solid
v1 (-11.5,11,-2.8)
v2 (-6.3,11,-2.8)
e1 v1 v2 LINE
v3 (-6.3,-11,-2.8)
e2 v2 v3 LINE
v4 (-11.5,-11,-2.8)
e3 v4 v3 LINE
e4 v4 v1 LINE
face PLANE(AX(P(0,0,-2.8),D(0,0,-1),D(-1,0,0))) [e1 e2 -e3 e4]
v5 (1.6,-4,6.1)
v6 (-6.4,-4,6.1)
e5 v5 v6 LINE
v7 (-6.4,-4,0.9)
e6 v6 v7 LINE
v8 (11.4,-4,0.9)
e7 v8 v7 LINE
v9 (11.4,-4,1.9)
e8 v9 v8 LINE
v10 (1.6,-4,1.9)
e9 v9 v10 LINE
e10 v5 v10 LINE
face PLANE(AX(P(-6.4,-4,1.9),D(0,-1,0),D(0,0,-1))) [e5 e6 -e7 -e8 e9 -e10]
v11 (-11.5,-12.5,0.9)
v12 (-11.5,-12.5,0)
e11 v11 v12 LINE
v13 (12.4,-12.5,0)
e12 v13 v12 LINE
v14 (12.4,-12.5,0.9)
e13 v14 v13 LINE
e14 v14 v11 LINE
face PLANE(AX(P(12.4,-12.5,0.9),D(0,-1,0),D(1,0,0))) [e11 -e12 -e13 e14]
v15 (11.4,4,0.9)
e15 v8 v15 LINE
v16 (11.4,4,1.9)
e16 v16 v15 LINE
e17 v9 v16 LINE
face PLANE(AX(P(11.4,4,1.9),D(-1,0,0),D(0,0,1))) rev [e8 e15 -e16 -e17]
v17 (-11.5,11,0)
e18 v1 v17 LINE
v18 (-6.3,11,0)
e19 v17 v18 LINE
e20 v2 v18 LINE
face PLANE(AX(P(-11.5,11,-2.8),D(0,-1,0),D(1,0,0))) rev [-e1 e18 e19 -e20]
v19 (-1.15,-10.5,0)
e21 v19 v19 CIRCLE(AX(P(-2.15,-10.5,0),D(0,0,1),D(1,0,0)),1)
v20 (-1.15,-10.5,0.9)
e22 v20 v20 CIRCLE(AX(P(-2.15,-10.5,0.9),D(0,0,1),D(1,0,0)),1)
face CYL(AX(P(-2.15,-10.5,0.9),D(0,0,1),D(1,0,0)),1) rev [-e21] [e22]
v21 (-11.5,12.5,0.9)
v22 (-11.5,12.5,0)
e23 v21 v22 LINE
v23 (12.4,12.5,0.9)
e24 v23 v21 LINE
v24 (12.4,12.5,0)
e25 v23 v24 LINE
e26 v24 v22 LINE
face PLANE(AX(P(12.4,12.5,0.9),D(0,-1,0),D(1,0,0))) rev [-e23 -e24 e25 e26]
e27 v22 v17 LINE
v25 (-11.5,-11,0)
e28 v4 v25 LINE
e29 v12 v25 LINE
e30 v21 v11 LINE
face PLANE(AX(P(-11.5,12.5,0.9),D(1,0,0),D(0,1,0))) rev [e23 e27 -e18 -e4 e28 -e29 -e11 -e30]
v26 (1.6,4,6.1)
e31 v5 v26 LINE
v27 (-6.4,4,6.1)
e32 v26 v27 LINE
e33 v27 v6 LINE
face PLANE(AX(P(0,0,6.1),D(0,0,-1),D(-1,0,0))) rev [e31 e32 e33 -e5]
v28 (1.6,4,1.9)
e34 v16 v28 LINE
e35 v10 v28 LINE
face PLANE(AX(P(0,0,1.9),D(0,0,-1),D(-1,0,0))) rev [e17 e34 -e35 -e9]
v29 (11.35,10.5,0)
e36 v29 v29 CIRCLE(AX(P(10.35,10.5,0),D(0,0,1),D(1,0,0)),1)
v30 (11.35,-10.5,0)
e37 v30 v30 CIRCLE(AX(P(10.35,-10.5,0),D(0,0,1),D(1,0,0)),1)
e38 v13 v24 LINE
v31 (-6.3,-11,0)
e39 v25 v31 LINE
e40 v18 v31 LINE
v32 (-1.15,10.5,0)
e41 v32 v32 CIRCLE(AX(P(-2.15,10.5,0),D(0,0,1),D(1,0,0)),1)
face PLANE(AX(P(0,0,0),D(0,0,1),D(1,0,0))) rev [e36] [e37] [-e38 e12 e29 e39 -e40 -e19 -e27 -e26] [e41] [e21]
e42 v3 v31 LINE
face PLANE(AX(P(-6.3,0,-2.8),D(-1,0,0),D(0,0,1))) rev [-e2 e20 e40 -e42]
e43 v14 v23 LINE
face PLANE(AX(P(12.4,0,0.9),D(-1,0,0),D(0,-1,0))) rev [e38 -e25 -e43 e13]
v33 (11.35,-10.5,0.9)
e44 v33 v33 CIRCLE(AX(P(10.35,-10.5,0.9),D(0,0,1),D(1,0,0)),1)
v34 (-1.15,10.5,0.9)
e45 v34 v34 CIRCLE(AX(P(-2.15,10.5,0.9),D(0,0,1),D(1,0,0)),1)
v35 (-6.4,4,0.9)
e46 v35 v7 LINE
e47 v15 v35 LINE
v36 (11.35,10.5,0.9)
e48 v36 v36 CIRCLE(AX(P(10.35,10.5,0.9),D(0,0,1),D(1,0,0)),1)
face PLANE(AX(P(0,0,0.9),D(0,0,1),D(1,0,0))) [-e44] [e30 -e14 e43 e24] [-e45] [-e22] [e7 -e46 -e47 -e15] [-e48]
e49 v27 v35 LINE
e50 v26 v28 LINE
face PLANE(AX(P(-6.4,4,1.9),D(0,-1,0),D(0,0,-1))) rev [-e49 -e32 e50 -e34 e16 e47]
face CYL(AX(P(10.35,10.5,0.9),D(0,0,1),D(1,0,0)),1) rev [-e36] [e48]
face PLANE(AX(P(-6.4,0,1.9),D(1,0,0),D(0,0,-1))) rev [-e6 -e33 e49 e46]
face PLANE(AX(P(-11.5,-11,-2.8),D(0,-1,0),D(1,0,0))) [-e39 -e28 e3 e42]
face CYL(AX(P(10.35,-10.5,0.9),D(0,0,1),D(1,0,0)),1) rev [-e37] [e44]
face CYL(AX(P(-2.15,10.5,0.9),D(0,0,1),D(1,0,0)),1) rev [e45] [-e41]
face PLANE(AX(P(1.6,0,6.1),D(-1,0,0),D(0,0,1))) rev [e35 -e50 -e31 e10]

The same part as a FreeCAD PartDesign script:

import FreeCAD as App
import Part
import Sketcher


def add_polygon(sketch, points):
    """Adds a closed chain of lines whose ends are joined by coincident constraints."""
    first, n = sketch.GeometryCount, len(points)
    for a, b in zip(points, points[1:] + points[:1]):
        sketch.addGeometry(Part.LineSegment(App.Vector(*a, 0), App.Vector(*b, 0)), False)
    for i in range(n):
        sketch.addConstraint(Sketcher.Constraint("Coincident", first + i, 2, first + (i + 1) % n, 1))

doc = App.newDocument("Part")
params = doc.addObject("Spreadsheet::Sheet", "Params")
for row, (alias, value) in enumerate([
    ("sketch1_width", "23.9 mm"),
    ("sketch1_height", "12.5 mm"),
    ("pad1_length", "0.9 mm"),
    ("sketch2_height", "4 mm"),
    ("sketch2_width", "17.8 mm"),
    ("pad2_length", "1 mm"),
    ("sketch3_width", "8 mm"),
    ("sketch3_height", "4 mm"),
    ("pad3_length", "4.2 mm"),
    ("sketch4_height", "11 mm"),
    ("sketch4_width", "5.2 mm"),
    ("pad4_length", "2.8 mm"),
    ("sketch5_diameter", "2 mm"),
    ("hole_diameter", "2 mm"),
], start=1):
    params.set(f"A{row}", alias)
    params.set(f"B{row}", "=" + value)
    params.setAlias(f"B{row}", alias)

body = doc.addObject("PartDesign::Body", "Body")

# Sketch on XY plane
sketch1 = body.newObject("Sketcher::SketchObject", "Sketch")
sketch1.AttachmentSupport = (doc.getObject("XY_Plane"), [""])
sketch1.MapMode = "FlatFace"
add_polygon(sketch1, [(-12, 12), (-12, 0), (12, 0), (12, 12)])  # lines 0-3
sketch1.addConstraint(Sketcher.Constraint("Vertical", 0))
sketch1.addConstraint(Sketcher.Constraint("Horizontal", 1))
sketch1.addConstraint(Sketcher.Constraint("Vertical", 2))
sketch1.addConstraint(Sketcher.Constraint("Horizontal", 3))
sketch1.addConstraint(Sketcher.Constraint("PointOnObject", 0, 2, -1))
sketch1.addConstraint(Sketcher.Constraint("DistanceX", 1, 1, 1, 2, 23.9))
sketch1.addConstraint(Sketcher.Constraint("DistanceY", 0, 2, 0, 1, 12.5))
sketch1.addConstraint(Sketcher.Constraint("DistanceX", 0, 2, -1, 1, 11.5))
sketch1.setExpression("Constraints[9]", "Params.sketch1_width")
sketch1.setExpression("Constraints[10]", "Params.sketch1_height")
pad1 = body.newObject("PartDesign::Pad", "Pad")
pad1.Profile = sketch1
pad1.setExpression("Length", "Params.pad1_length")

# Sketch on XY plane
sketch2 = body.newObject("Sketcher::SketchObject", "Sketch001")
sketch2.AttachmentSupport = (doc.getObject("XY_Plane"), [""])
sketch2.MapMode = "FlatFace"
sketch2.AttachmentOffset = App.Placement(App.Vector(0, 0, 0.9), App.Rotation())
add_polygon(sketch2, [(-6.4, 4), (-6.4, 0), (11.4, 0), (11.4, 4)])  # lines 0-3
sketch2.addConstraint(Sketcher.Constraint("Vertical", 0))
sketch2.addConstraint(Sketcher.Constraint("Horizontal", 1))
sketch2.addConstraint(Sketcher.Constraint("Vertical", 2))
sketch2.addConstraint(Sketcher.Constraint("Horizontal", 3))
sketch2.addConstraint(Sketcher.Constraint("PointOnObject", 0, 2, -1))
sketch2.addConstraint(Sketcher.Constraint("DistanceY", 0, 2, 0, 1, 4.0))
sketch2.addConstraint(Sketcher.Constraint("DistanceX", 1, 1, 1, 2, 17.8))
sketch2.addConstraint(Sketcher.Constraint("DistanceX", 0, 2, -1, 1, 6.4))
sketch2.setExpression("Constraints[9]", "Params.sketch2_height")
sketch2.setExpression("Constraints[10]", "Params.sketch2_width")
pad2 = body.newObject("PartDesign::Pad", "Pad001")
pad2.Profile = sketch2
pad2.setExpression("Length", "Params.pad2_length")

# Sketch on XY plane
sketch3 = body.newObject("Sketcher::SketchObject", "Sketch002")
sketch3.AttachmentSupport = (doc.getObject("XY_Plane"), [""])
sketch3.MapMode = "FlatFace"
sketch3.AttachmentOffset = App.Placement(App.Vector(0, 0, 1.9), App.Rotation())
add_polygon(sketch3, [(-6.4, 4), (-6.4, 0), (1.6, 0), (1.6, 4)])  # lines 0-3
sketch3.addConstraint(Sketcher.Constraint("Vertical", 0))
sketch3.addConstraint(Sketcher.Constraint("Horizontal", 1))
sketch3.addConstraint(Sketcher.Constraint("Vertical", 2))
sketch3.addConstraint(Sketcher.Constraint("Horizontal", 3))
sketch3.addConstraint(Sketcher.Constraint("PointOnObject", 0, 2, -1))
sketch3.addConstraint(Sketcher.Constraint("DistanceX", 1, 1, 1, 2, 8.0))
sketch3.addConstraint(Sketcher.Constraint("DistanceY", 0, 2, 0, 1, 4.0))
sketch3.addConstraint(Sketcher.Constraint("DistanceX", 0, 2, -1, 1, 6.4))
sketch3.setExpression("Constraints[9]", "Params.sketch3_width")
sketch3.setExpression("Constraints[10]", "Params.sketch3_height")
pad3 = body.newObject("PartDesign::Pad", "Pad002")
pad3.Profile = sketch3
pad3.setExpression("Length", "Params.pad3_length")

# Sketch on XY plane
sketch4 = body.newObject("Sketcher::SketchObject", "Sketch003")
sketch4.AttachmentSupport = (doc.getObject("XY_Plane"), [""])
sketch4.MapMode = "FlatFace"
add_polygon(sketch4, [(-6, 11), (-6, 0), (-12, 0), (-12, 11)])  # lines 0-3
sketch4.addConstraint(Sketcher.Constraint("Vertical", 0))
sketch4.addConstraint(Sketcher.Constraint("Horizontal", 1))
sketch4.addConstraint(Sketcher.Constraint("Vertical", 2))
sketch4.addConstraint(Sketcher.Constraint("Horizontal", 3))
sketch4.addConstraint(Sketcher.Constraint("PointOnObject", 0, 2, -1))
sketch4.addConstraint(Sketcher.Constraint("DistanceY", 0, 2, 0, 1, 11.0))
sketch4.addConstraint(Sketcher.Constraint("DistanceX", 1, 2, 1, 1, 5.2))
sketch4.addConstraint(Sketcher.Constraint("DistanceX", 0, 2, -1, 1, 6.3))
sketch4.setExpression("Constraints[9]", "Params.sketch4_height")
sketch4.setExpression("Constraints[10]", "Params.sketch4_width")
pad4 = body.newObject("PartDesign::Pad", "Pad003")
pad4.Profile = sketch4
pad4.setExpression("Length", "Params.pad4_length")
pad4.Reversed = True

# Sketch on XY plane
sketch5 = body.newObject("Sketcher::SketchObject", "Sketch004")
sketch5.AttachmentSupport = (doc.getObject("XY_Plane"), [""])
sketch5.MapMode = "FlatFace"
sketch5.AttachmentOffset = App.Placement(App.Vector(0, 0, 0.9), App.Rotation())
sketch5.addGeometry(Part.Circle(App.Vector(-2.1, 10.5, 0), App.Vector(0, 0, 1), 1), False)
sketch5.addGeometry(Part.Circle(App.Vector(10.3, 10.5, 0), App.Vector(0, 0, 1), 1), False)
sketch5.addConstraint(Sketcher.Constraint("Equal", 0, 1))
sketch5.addConstraint(Sketcher.Constraint("Horizontal", 0, 3, 1, 3))
sketch5.addConstraint(Sketcher.Constraint("Diameter", 0, 2.0))
sketch5.addConstraint(Sketcher.Constraint("DistanceY", -1, 1, 0, 3, 10.5))
sketch5.addConstraint(Sketcher.Constraint("DistanceX", 0, 3, 1, 3, 12.5))
sketch5.addConstraint(Sketcher.Constraint("DistanceX", 0, 3, -1, 1, 2.15))
sketch5.setExpression("Constraints[2]", "Params.sketch5_diameter")
doc.recompute()
hole = body.newObject("PartDesign::Hole", "Hole")
hole.Profile = sketch5
hole.ThreadType = "None"
hole.setExpression("Diameter", "Params.hole_diameter")
hole.DepthType = "ThroughAll"
doc.recompute()

mirrored = body.newObject("PartDesign::Mirrored", "Mirrored")
mirrored.Originals = [pad1, pad2, pad3, pad4]
mirrored.MirrorPlane = (doc.getObject("XZ_Plane"), [""])
body.Tip = mirrored
doc.recompute()

mirrored2 = body.newObject("PartDesign::Mirrored", "Mirrored001")
mirrored2.Originals = [hole]
mirrored2.MirrorPlane = (doc.getObject("XZ_Plane"), [""])
body.Tip = mirrored2

doc.recompute()
